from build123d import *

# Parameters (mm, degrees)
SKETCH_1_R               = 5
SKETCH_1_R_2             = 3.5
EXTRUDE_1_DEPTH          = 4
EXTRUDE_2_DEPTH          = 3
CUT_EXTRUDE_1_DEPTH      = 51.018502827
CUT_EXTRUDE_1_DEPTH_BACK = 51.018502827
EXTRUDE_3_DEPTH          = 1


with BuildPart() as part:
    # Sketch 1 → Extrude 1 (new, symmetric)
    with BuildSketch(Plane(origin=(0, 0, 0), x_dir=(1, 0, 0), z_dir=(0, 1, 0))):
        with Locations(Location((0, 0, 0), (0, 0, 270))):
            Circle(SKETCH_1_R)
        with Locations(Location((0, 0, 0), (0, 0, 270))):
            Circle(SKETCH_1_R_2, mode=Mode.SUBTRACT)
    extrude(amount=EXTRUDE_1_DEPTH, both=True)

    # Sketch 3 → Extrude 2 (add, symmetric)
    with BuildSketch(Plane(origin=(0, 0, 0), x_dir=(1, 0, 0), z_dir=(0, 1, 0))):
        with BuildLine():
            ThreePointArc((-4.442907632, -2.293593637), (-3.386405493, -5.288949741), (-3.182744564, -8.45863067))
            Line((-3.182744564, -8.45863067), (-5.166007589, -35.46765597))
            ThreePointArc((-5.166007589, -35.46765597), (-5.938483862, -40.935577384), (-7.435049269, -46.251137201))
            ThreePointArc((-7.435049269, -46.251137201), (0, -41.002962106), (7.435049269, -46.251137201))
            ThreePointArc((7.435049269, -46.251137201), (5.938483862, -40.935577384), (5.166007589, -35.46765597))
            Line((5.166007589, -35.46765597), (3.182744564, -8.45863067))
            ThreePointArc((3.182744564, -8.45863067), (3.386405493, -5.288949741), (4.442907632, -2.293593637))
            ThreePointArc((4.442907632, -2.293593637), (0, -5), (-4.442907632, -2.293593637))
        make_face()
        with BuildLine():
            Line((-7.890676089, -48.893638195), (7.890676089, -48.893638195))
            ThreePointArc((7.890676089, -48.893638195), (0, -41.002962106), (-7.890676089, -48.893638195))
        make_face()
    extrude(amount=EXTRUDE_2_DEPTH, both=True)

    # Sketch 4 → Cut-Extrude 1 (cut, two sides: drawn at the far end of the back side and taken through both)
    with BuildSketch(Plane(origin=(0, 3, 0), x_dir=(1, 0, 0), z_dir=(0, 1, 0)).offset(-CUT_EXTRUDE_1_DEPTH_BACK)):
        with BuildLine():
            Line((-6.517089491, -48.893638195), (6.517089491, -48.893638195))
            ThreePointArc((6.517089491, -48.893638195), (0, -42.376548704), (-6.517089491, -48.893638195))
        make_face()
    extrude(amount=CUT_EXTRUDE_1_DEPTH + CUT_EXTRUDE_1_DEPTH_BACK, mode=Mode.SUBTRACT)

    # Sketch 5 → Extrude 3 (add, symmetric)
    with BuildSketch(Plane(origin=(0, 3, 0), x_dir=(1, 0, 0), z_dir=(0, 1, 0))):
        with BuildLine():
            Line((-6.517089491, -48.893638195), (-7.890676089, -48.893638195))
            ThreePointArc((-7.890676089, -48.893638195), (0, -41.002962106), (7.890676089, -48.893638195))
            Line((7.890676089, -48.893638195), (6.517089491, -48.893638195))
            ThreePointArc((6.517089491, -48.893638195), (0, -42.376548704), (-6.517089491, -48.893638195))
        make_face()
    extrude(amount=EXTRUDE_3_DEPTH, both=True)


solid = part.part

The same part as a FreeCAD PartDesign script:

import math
import FreeCAD as App
import Part
import Sketcher

V = App.Vector

doc = App.newDocument("Part")
body = doc.addObject("PartDesign::Body", "Body")

sketch1 = body.newObject("Sketcher::SketchObject", "Sketch")
sketch1.AttachmentSupport = (doc.getObject("XZ_Plane"), [""])
sketch1.MapMode = "FlatFace"
sketch1.addGeometry(Part.Circle(V(0, 0, 0), V(0, 0, 1), 5), False)
sketch1.addGeometry(Part.Circle(V(0, 0, 0), V(0, 0, 1), 3.5), False)
sketch1.addConstraint(Sketcher.Constraint("Coincident", 0, 3, -1, 1))
sketch1.addConstraint(Sketcher.Constraint("Coincident", 1, 3, -1, 1))
sketch1.addConstraint(Sketcher.Constraint("Diameter", 0, 10.0))
sketch1.addConstraint(Sketcher.Constraint("Diameter", 1, 7.0))
pad1 = body.newObject("PartDesign::Pad", "Pad")
pad1.Profile = sketch1
pad1.Length = 8
pad1.Midplane = True

sketch2 = body.newObject("Sketcher::SketchObject", "Sketch001")
sketch2.AttachmentSupport = (doc.getObject("XZ_Plane"), [""])
sketch2.MapMode = "FlatFace"
sketch2.addGeometry(Part.ArcOfCircle(Part.Circle(V(-14.7, 7.6, 0), V(0, 0, 1), 11.6), math.radians(-27), math.radians(4)), False)
sketch2.addGeometry(Part.LineSegment(V(-3.2, 8.5, 0), V(-5.2, 35.5, 0)), False)
sketch2.addGeometry(Part.ArcOfCircle(Part.Circle(V(-46.3, 32.4, 0), V(0, 0, 1), 41.2), math.radians(4.2), math.radians(19.57)), False)
sketch2.addGeometry(Part.ArcOfCircle(Part.Circle(V(0, 48.9, 0), V(0, 0, 1), 7.9), math.radians(180), math.radians(199.57)), False)
sketch2.addGeometry(Part.LineSegment(V(-7.9, 48.9, 0), V(7.9, 48.9, 0)), False)
sketch2.addGeometry(Part.ArcOfCircle(Part.Circle(V(0, 48.9, 0), V(0, 0, 1), 7.9), math.radians(-19.57), math.radians(0)), False)
sketch2.addGeometry(Part.ArcOfCircle(Part.Circle(V(46.3, 32.4, 0), V(0, 0, 1), 41.2), math.radians(160.43), math.radians(175.8)), False)
sketch2.addGeometry(Part.LineSegment(V(5.2, 35.5, 0), V(3.2, 8.5, 0)), False)
sketch2.addGeometry(Part.ArcOfCircle(Part.Circle(V(14.7, 7.6, 0), V(0, 0, 1), 11.6), math.radians(176), math.radians(207)), False)
sketch2.addGeometry(Part.ArcOfCircle(Part.Circle(V(0, 0, 0), V(0, 0, 1), 5), math.radians(27), math.radians(153)), False)
sketch2.addConstraint(Sketcher.Constraint("Tangent", 0, 2, 1, 1))
sketch2.addConstraint(Sketcher.Constraint("Tangent", 1, 2, 2, 1))
sketch2.addConstraint(Sketcher.Constraint("Tangent", 2, 2, 3, 2))
sketch2.addConstraint(Sketcher.Constraint("Coincident", 3, 1, 4, 1))
sketch2.addConstraint(Sketcher.Constraint("Coincident", 4, 2, 5, 2))
sketch2.addConstraint(Sketcher.Constraint("Tangent", 5, 1, 6, 1))
sketch2.addConstraint(Sketcher.Constraint("Tangent", 6, 2, 7, 1))
sketch2.addConstraint(Sketcher.Constraint("Tangent", 7, 2, 8, 1))
sketch2.addConstraint(Sketcher.Constraint("Tangent", 8, 2, 9, 1))
sketch2.addConstraint(Sketcher.Constraint("Tangent", 9, 2, 0, 1))
sketch2.addConstraint(Sketcher.Constraint("Horizontal", 4))
sketch2.addConstraint(Sketcher.Constraint("Coincident", 9, 3, -1, 1))
sketch2.addConstraint(Sketcher.Constraint("Coincident", 5, 3, 3, 3))
sketch2.addConstraint(Sketcher.Constraint("Equal", 3, 5))
sketch2.addConstraint(Sketcher.Constraint("Equal", 2, 6))
sketch2.addConstraint(Sketcher.Constraint("Equal", 0, 8))
sketch2.addConstraint(Sketcher.Constraint("Symmetric", 2, 3, 6, 3, -2))
sketch2.addConstraint(Sketcher.Constraint("Horizontal", 0, 3, 8, 3))
sketch2.addConstraint(Sketcher.Constraint("Horizontal", 5, 3, 3, 1))
sketch2.addConstraint(Sketcher.Constraint("Radius", 9, 5.0))
sketch2.addConstraint(Sketcher.Constraint("Radius", 0, 11.589479))
sketch2.addConstraint(Sketcher.Constraint("Radius", 2, 41.212346))
sketch2.addConstraint(Sketcher.Constraint("Radius", 3, 7.890676))
sketch2.addConstraint(Sketcher.Constraint("DistanceX", 0, 3, 6, 3, 61.008799))
sketch2.addConstraint(Sketcher.Constraint("DistanceY", 5, 1, 4, 2, 2.642501))
sketch2.addConstraint(Sketcher.Constraint("DistanceY", -1, 1, 3, 3, 48.893638))
pad2 = body.newObject("PartDesign::Pad", "Pad001")
pad2.Profile = sketch2
pad2.Length = 6
pad2.Midplane = True

sketch3 = body.newObject("Sketcher::SketchObject", "Sketch002")
sketch3.AttachmentSupport = (doc.getObject("XZ_Plane"), [""])
sketch3.MapMode = "FlatFace"
sketch3.AttachmentOffset = App.Placement(V(0, 0, -3), App.Rotation())
sketch3.addGeometry(Part.LineSegment(V(-7, 49, 0), V(7, 49, 0)), False)
sketch3.addGeometry(Part.ArcOfCircle(Part.Circle(V(0, 49, 0), V(0, 0, 1), 7), math.radians(180), math.radians(360)), False)
sketch3.addConstraint(Sketcher.Constraint("Coincident", 0, 1, 1, 1))
sketch3.addConstraint(Sketcher.Constraint("Coincident", 1, 2, 0, 2))
sketch3.addConstraint(Sketcher.Constraint("Horizontal", 0))
sketch3.addConstraint(Sketcher.Constraint("PointOnObject", 1, 3, -2))
sketch3.addConstraint(Sketcher.Constraint("Horizontal", 1, 3, 0, 1))
sketch3.addConstraint(Sketcher.Constraint("Radius", 1, 6.517089))
sketch3.addConstraint(Sketcher.Constraint("DistanceY", -1, 1, 1, 3, 48.893638))
pocket1 = body.newObject("PartDesign::Pocket", "Pocket")
pocket1.Profile = sketch3
pocket1.Type = "ThroughAll"
pocket1.Midplane = True

sketch4 = body.newObject("Sketcher::SketchObject", "Sketch003")
sketch4.AttachmentSupport = (doc.getObject("XZ_Plane"), [""])
sketch4.MapMode = "FlatFace"
sketch4.AttachmentOffset = App.Placement(V(0, 0, -3), App.Rotation())
sketch4.addGeometry(Part.LineSegment(V(-7.9, 48.9, 0), V(-6.5, 48.9, 0)), False)
sketch4.addGeometry(Part.ArcOfCircle(Part.Circle(V(0, 48.9, 0), V(0, 0, 1), 6.5), math.radians(180), math.radians(360)), False)
sketch4.addGeometry(Part.LineSegment(V(6.5, 48.9, 0), V(7.9, 48.9, 0)), False)
sketch4.addGeometry(Part.ArcOfCircle(Part.Circle(V(0, 48.9, 0), V(0, 0, 1), 7.9), math.radians(180), math.radians(360)), False)
sketch4.addConstraint(Sketcher.Constraint("Coincident", 0, 2, 1, 1))
sketch4.addConstraint(Sketcher.Constraint("Coincident", 1, 2, 2, 1))
sketch4.addConstraint(Sketcher.Constraint("Coincident", 2, 2, 3, 2))
sketch4.addConstraint(Sketcher.Constraint("Coincident", 3, 1, 0, 1))
sketch4.addConstraint(Sketcher.Constraint("Horizontal", 0))
sketch4.addConstraint(Sketcher.Constraint("Horizontal", 2))
sketch4.addConstraint(Sketcher.Constraint("Coincident", 3, 3, 1, 3))
sketch4.addConstraint(Sketcher.Constraint("Symmetric", 0, 2, 1, 2, -2))
sketch4.addConstraint(Sketcher.Constraint("Horizontal", 3, 3, 0, 2))
sketch4.addConstraint(Sketcher.Constraint("Radius", 1, 6.517089))
sketch4.addConstraint(Sketcher.Constraint("Radius", 3, 7.890676))
sketch4.addConstraint(Sketcher.Constraint("DistanceY", -1, 1, 1, 3, 48.893638))
pad3 = body.newObject("PartDesign::Pad", "Pad002")
pad3.Profile = sketch4
pad3.Length = 2
pad3.Midplane = True

doc.recompute()
